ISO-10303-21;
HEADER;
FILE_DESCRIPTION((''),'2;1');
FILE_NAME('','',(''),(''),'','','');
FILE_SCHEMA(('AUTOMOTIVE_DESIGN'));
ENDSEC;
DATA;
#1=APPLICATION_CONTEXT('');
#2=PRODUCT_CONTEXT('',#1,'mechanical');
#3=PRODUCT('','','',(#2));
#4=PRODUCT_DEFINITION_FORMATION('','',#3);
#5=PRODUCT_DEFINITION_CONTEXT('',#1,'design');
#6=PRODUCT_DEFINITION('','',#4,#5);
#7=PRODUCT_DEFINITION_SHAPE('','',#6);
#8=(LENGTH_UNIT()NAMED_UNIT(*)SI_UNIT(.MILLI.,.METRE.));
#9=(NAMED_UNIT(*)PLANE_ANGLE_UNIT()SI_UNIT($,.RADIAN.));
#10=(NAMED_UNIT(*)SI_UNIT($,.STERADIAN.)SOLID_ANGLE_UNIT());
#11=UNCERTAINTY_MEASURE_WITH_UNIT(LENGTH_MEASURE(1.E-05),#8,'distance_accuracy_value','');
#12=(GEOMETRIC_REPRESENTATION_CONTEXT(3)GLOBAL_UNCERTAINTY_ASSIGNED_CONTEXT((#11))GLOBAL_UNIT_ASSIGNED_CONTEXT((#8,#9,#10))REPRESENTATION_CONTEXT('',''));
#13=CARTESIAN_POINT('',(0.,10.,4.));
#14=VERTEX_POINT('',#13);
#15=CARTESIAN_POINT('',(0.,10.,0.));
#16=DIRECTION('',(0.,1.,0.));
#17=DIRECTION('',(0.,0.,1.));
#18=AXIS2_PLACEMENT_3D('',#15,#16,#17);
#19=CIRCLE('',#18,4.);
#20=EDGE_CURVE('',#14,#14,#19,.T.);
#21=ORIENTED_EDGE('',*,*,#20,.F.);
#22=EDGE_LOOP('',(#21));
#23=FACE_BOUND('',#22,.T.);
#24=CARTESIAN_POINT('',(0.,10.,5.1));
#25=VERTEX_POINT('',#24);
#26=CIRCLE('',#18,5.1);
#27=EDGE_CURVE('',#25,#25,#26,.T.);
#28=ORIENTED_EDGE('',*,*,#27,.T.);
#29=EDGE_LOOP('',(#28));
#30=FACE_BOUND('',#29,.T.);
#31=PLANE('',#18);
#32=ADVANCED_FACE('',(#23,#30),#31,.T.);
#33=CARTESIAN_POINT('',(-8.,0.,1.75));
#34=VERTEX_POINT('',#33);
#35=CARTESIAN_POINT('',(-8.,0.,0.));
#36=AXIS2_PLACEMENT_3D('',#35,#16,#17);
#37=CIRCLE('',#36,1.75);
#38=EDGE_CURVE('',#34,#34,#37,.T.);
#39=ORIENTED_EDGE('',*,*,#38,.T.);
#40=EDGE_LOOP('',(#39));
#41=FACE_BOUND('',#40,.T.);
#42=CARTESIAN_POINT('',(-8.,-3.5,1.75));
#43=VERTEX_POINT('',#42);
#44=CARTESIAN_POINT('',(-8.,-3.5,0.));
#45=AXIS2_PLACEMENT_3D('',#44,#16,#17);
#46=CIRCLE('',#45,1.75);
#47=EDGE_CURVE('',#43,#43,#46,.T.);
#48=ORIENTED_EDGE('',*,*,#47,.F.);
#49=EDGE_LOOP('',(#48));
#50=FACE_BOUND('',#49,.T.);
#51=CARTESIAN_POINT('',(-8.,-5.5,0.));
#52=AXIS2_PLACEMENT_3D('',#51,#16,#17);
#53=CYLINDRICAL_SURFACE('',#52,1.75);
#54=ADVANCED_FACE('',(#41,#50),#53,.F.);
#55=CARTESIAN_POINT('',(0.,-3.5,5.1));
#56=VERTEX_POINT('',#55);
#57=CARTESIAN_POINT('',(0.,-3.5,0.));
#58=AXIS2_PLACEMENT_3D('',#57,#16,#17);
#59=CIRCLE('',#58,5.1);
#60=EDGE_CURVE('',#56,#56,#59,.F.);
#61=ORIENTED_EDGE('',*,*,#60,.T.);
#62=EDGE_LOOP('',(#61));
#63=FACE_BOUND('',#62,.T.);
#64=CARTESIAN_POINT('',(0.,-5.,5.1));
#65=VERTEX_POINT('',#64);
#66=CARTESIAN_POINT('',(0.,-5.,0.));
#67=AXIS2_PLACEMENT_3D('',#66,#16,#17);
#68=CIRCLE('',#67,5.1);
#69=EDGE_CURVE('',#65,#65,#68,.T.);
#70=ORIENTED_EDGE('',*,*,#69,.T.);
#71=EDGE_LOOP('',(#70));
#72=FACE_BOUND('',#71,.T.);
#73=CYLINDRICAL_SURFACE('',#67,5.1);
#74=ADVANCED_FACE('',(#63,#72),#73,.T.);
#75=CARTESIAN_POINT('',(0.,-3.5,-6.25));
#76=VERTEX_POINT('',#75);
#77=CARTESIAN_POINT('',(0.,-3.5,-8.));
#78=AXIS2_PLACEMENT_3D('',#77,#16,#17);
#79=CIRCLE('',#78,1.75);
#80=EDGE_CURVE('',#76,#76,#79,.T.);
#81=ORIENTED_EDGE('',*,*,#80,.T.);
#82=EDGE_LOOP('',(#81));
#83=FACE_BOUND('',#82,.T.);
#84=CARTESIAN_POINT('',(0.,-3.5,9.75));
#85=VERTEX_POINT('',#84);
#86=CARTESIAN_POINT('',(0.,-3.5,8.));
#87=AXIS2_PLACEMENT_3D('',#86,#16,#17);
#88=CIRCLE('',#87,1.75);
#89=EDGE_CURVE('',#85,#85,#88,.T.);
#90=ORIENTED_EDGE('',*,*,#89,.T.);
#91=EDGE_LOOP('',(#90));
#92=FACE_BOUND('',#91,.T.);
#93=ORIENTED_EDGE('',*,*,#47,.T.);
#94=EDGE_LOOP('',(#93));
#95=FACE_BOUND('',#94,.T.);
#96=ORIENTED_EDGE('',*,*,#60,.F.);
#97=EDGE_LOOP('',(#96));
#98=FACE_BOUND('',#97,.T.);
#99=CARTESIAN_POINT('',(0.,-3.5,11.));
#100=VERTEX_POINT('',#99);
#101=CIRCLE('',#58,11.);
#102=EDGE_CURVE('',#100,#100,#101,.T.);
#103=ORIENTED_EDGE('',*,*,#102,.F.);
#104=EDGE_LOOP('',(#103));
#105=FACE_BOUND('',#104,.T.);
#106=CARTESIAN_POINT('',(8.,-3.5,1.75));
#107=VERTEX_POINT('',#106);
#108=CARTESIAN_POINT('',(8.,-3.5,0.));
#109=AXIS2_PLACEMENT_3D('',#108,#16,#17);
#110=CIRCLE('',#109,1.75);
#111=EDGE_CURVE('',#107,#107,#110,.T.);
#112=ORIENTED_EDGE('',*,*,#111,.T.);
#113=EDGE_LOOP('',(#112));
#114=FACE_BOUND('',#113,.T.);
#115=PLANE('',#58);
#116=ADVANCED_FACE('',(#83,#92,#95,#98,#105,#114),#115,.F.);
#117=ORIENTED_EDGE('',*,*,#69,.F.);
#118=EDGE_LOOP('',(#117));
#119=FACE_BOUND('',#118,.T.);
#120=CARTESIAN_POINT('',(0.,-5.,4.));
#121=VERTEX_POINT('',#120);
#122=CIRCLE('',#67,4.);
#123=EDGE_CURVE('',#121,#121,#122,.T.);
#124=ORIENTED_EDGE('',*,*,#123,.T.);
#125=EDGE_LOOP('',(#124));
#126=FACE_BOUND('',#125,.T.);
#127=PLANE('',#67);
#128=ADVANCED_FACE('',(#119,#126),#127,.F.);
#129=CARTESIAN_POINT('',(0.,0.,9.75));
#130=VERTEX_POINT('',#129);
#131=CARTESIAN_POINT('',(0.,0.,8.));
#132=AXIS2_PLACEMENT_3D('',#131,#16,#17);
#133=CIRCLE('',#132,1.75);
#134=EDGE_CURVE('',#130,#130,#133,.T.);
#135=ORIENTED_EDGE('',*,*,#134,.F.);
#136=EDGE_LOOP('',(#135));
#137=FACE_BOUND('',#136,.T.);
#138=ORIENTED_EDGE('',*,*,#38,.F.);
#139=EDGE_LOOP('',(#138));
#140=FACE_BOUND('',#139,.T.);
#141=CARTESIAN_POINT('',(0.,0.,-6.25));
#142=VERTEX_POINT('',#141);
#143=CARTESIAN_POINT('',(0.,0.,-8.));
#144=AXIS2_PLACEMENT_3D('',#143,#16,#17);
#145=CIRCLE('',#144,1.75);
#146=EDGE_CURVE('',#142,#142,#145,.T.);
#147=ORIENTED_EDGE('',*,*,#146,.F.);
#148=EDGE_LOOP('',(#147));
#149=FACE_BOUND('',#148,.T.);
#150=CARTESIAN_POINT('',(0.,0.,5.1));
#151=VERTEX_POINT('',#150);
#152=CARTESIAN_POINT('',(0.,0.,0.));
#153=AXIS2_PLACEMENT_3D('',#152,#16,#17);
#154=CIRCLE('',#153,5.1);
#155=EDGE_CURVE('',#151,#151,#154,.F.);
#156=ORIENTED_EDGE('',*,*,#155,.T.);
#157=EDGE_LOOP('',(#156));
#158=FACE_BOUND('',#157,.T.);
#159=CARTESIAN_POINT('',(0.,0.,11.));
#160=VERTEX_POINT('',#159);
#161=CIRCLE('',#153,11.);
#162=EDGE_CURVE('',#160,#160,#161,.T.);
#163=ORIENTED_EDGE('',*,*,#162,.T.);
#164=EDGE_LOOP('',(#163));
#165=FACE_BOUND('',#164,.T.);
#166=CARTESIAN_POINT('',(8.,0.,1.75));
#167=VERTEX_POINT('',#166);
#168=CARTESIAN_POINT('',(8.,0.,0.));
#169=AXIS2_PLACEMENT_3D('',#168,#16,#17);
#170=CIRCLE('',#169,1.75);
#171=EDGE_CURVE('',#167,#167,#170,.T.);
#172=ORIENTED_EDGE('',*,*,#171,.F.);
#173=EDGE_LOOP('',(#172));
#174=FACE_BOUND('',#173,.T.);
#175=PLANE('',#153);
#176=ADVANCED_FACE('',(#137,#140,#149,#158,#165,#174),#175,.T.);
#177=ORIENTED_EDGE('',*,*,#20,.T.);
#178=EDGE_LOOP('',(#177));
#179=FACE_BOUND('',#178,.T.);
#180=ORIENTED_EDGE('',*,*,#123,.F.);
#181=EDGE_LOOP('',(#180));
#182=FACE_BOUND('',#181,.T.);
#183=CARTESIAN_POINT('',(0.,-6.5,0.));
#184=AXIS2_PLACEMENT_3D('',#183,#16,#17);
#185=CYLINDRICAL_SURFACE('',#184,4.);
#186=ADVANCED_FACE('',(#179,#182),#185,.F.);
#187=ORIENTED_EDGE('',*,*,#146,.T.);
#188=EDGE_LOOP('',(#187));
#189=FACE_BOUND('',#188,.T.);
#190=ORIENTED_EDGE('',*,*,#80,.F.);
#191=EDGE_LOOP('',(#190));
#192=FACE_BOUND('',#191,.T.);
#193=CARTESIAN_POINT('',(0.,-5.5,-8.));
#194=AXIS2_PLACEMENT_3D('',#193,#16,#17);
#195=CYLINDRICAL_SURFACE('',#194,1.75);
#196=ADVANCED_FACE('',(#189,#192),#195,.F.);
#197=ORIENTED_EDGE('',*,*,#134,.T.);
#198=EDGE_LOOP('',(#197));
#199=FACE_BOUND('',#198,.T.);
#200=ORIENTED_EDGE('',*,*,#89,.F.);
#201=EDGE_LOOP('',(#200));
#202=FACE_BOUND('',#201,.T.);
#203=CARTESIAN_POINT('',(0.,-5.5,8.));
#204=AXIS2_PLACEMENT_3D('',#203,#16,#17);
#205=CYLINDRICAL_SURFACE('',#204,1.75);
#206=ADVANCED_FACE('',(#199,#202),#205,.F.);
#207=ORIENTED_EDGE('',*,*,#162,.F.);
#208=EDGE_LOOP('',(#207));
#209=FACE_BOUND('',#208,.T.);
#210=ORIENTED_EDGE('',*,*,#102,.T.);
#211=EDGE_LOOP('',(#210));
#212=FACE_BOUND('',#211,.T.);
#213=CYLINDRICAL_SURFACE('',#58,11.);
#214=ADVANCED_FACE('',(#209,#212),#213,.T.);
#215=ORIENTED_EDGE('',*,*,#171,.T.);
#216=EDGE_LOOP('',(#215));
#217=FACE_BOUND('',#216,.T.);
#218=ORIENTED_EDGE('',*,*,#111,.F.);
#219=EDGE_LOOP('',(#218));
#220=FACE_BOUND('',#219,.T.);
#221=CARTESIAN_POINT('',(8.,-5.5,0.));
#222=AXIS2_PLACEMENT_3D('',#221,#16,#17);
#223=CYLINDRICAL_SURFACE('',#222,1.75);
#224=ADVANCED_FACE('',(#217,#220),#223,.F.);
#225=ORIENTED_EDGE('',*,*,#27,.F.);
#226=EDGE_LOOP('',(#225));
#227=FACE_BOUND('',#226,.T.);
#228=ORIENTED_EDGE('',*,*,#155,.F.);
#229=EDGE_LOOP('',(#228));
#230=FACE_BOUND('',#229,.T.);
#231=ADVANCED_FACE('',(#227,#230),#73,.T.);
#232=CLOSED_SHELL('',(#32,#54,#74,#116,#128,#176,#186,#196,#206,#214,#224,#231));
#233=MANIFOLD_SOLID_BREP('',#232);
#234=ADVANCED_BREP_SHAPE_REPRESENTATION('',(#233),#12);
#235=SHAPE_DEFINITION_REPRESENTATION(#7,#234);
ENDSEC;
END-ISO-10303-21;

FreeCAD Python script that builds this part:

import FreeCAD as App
import Part
import Sketcher
Q = App.Units.Quantity

doc = App.newDocument("Part")
body = doc.addObject("PartDesign::Body", "Body")

sketch1 = doc.addObject("Sketcher::SketchObject", "Sketch")
body.addObject(sketch1)
sketch1.AttachmentSupport = (doc.XZ_Plane, [""])
sketch1.MapMode = "FlatFace"
sketch1.addGeometry(Part.Circle(App.Vector(0, 0, 0), App.Vector(0, 0, 1), 5), False)
sketch1.addConstraint([
    Sketcher.Constraint("Coincident", 0, 3, -1, 1),
    Sketcher.Constraint("Diameter", 0, Q("10.2 mm")),
])
pad1 = doc.addObject("PartDesign::Pad", "Pad")
body.addObject(pad1)
pad1.Profile = sketch1
pad1.Type = "TwoLengths"
pad1.Length = 10
pad1.Length2 = 5
pad1.Reversed = True

sketch2 = doc.addObject("Sketcher::SketchObject", "Sketch001")
body.addObject(sketch2)
sketch2.AttachmentSupport = (doc.XZ_Plane, [""])
sketch2.MapMode = "FlatFace"
sketch2.addGeometry(Part.Circle(App.Vector(0, 0, 0), App.Vector(0, 0, 1), 11), False)
sketch2.addConstraint([
    Sketcher.Constraint("Coincident", 0, 3, -1, 1),
    Sketcher.Constraint("Diameter", 0, Q("22 mm")),
])
pad2 = doc.addObject("PartDesign::Pad", "Pad001")
body.addObject(pad2)
pad2.Profile = sketch2
pad2.Length = 3.5

sketch3 = doc.addObject("Sketcher::SketchObject", "Sketch002")
body.addObject(sketch3)
sketch3.AttachmentSupport = (doc.XZ_Plane, [""])
sketch3.MapMode = "FlatFace"
sketch3.addGeometry([
    Part.Circle(App.Vector(-8, 0, 0), App.Vector(0, 0, 1), 1.8),
    Part.Circle(App.Vector(0, -8, 0), App.Vector(0, 0, 1), 1.8),
    Part.Circle(App.Vector(8, 0, 0), App.Vector(0, 0, 1), 1.8),
    Part.Circle(App.Vector(0, 8, 0), App.Vector(0, 0, 1), 1.8),
], False)
sketch3.addConstraint([
    Sketcher.Constraint("Equal", 0, 1),
    Sketcher.Constraint("Equal", 1, 2),
    Sketcher.Constraint("Equal", 2, 3),
    Sketcher.Constraint("Symmetric", 0, 3, 2, 3, -1, 1),
    Sketcher.Constraint("Symmetric", 1, 3, 3, 3, -1, 1),
    Sketcher.Constraint("PointOnObject", 0, 3, -1),
    Sketcher.Constraint("PointOnObject", 1, 3, -2),
    Sketcher.Constraint("Diameter", 0, Q("3.5 mm")),
    Sketcher.Constraint("DistanceX", 0, 3, -1, 1, Q("8 mm")),
    Sketcher.Constraint("DistanceY", 1, 3, -1, 1, Q("8 mm")),
])
pocket1 = doc.addObject("PartDesign::Pocket", "Pocket")
body.addObject(pocket1)
pocket1.Profile = sketch3
pocket1.Length = 5.5
pocket1.Reversed = True

sketch4 = doc.addObject("Sketcher::SketchObject", "Sketch003")
body.addObject(sketch4)
sketch4.AttachmentSupport = (doc.XZ_Plane, [""])
sketch4.MapMode = "FlatFace"
sketch4.AttachmentOffset = App.Placement(App.Vector(0, 0, -10), App.Rotation())
sketch4.addGeometry(Part.Circle(App.Vector(0, 0, 0), App.Vector(0, 0, 1), 4), False)
sketch4.addConstraint([
    Sketcher.Constraint("Coincident", 0, 3, -1, 1),
    Sketcher.Constraint("Diameter", 0, Q("8 mm")),
])
pocket2 = doc.addObject("PartDesign::Pocket", "Pocket001")
body.addObject(pocket2)
pocket2.Profile = sketch4
pocket2.Length = 16.5
pocket2.Reversed = True

doc.recompute()
